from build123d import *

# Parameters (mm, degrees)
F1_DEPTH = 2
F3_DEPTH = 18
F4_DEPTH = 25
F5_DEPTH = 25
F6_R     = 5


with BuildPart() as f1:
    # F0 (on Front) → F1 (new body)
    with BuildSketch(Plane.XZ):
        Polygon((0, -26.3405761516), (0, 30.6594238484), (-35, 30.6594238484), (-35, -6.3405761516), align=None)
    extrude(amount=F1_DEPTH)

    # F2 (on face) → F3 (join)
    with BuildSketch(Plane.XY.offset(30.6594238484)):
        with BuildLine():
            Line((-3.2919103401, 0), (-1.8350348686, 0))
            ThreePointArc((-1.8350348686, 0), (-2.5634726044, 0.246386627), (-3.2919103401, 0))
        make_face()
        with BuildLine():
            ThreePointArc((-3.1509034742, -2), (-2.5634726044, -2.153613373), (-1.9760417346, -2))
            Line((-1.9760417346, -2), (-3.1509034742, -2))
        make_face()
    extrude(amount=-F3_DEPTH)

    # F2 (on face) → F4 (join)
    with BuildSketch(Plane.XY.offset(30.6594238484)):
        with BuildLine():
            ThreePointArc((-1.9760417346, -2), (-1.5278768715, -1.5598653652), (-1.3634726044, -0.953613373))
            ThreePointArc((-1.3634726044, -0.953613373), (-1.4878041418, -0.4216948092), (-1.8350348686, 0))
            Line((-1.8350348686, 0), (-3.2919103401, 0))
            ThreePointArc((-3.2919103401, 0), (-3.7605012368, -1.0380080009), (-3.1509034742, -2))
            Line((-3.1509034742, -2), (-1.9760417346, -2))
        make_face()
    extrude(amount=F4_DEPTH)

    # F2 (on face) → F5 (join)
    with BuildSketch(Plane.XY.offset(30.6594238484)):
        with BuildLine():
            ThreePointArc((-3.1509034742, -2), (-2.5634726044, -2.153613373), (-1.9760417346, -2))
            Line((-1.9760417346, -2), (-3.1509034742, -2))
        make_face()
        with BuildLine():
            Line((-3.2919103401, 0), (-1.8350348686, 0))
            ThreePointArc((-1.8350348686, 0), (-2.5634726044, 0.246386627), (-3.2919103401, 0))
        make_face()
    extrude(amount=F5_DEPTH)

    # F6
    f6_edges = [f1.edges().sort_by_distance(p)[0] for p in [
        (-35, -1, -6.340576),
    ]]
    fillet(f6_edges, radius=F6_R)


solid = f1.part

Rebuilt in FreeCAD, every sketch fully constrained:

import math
import FreeCAD as App
import Part
import Sketcher


def edges_at(feature, points):
    """Names of the edges that pass closest to the given points."""
    edges = feature.Shape.Edges
    near = lambda p: min(range(len(edges)), key=lambda i: edges[i].distToShape(Part.Vertex(*p))[0])
    return sorted({f"Edge{near(p) + 1}" for p in points})

doc = App.newDocument("Part")
body = doc.addObject("PartDesign::Body", "Body")

# Sketch on XZ plane
sketch1 = body.newObject("Sketcher::SketchObject", "Sketch")
sketch1.AttachmentSupport = (doc.getObject("XZ_Plane"), [""])
sketch1.MapMode = "FlatFace"
sketch1.addGeometry(Part.LineSegment(App.Vector(0, -26, 0), App.Vector(0, 31, 0)), False)
sketch1.addGeometry(Part.LineSegment(App.Vector(0, 31, 0), App.Vector(-35, 31, 0)), False)
sketch1.addGeometry(Part.LineSegment(App.Vector(-35, 31, 0), App.Vector(-35, -6, 0)), False)
sketch1.addGeometry(Part.LineSegment(App.Vector(-35, -6, 0), App.Vector(0, -26, 0)), False)
sketch1.addConstraint(Sketcher.Constraint("Coincident", 0, 2, 1, 1))
sketch1.addConstraint(Sketcher.Constraint("Coincident", 1, 2, 2, 1))
sketch1.addConstraint(Sketcher.Constraint("Coincident", 2, 2, 3, 1))
sketch1.addConstraint(Sketcher.Constraint("Coincident", 3, 2, 0, 1))
sketch1.addConstraint(Sketcher.Constraint("Vertical", 0))
sketch1.addConstraint(Sketcher.Constraint("Horizontal", 1))
sketch1.addConstraint(Sketcher.Constraint("Vertical", 2))
sketch1.addConstraint(Sketcher.Constraint("PointOnObject", 0, 2, -2))
sketch1.addConstraint(Sketcher.Constraint("DistanceX", 1, 2, 1, 1, 35.0))
sketch1.addConstraint(Sketcher.Constraint("DistanceY", 0, 1, 0, 2, 57.0))
sketch1.addConstraint(Sketcher.Constraint("DistanceY", 2, 2, 2, 1, 37.0))
sketch1.addConstraint(Sketcher.Constraint("DistanceY", -1, 1, 0, 2, 30.659424))
pad1 = body.newObject("PartDesign::Pad", "Pad")
pad1.Profile = sketch1
pad1.Length = 2

# Sketch on XY plane
sketch2 = body.newObject("Sketcher::SketchObject", "Sketch001")
sketch2.AttachmentSupport = (doc.getObject("XY_Plane"), [""])
sketch2.MapMode = "FlatFace"
sketch2.AttachmentOffset = App.Placement(App.Vector(0, 0, 30.659424), App.Rotation())
sketch2.addGeometry(Part.LineSegment(App.Vector(-3.3, 0, 0), App.Vector(-1.8, 0, 0)), False)
sketch2.addGeometry(Part.ArcOfCircle(Part.Circle(App.Vector(-2.6, -1, 0), App.Vector(0, 0, 1), 1.2), math.radians(53), math.radians(127)), False)
sketch2.addGeometry(Part.ArcOfCircle(Part.Circle(App.Vector(-2.6, -1, 0), App.Vector(0, 0, 1), 1.2), math.radians(-119), math.radians(-61)), False)
sketch2.addGeometry(Part.LineSegment(App.Vector(-2, -2, 0), App.Vector(-3.2, -2, 0)), False)
sketch2.addConstraint(Sketcher.Constraint("Coincident", 0, 1, 1, 2))
sketch2.addConstraint(Sketcher.Constraint("Coincident", 1, 1, 0, 2))
sketch2.addConstraint(Sketcher.Constraint("Coincident", 2, 1, 3, 2))
sketch2.addConstraint(Sketcher.Constraint("Coincident", 3, 1, 2, 2))
sketch2.addConstraint(Sketcher.Constraint("Horizontal", 0))
sketch2.addConstraint(Sketcher.Constraint("Horizontal", 3))
sketch2.addConstraint(Sketcher.Constraint("Coincident", 2, 3, 1, 3))
sketch2.addConstraint(Sketcher.Constraint("Equal", 1, 2))
sketch2.addConstraint(Sketcher.Constraint("PointOnObject", 0, 1, -1))
sketch2.addConstraint(Sketcher.Constraint("Radius", 1, 1.2))
sketch2.addConstraint(Sketcher.Constraint("DistanceY", 2, 1, -1, 1, 2.0))
sketch2.addConstraint(Sketcher.Constraint("DistanceX", 3, 2, 3, 1, 1.174862))
sketch2.addConstraint(Sketcher.Constraint("DistanceX", 0, 1, -1, 1, 3.29191))
pad2 = body.newObject("PartDesign::Pad", "Pad001")
pad2.Profile = sketch2
pad2.Length = 18
pad2.Reversed = True

# Sketch on XY plane
sketch3 = body.newObject("Sketcher::SketchObject", "Sketch002")
sketch3.AttachmentSupport = (doc.getObject("XY_Plane"), [""])
sketch3.MapMode = "FlatFace"
sketch3.AttachmentOffset = App.Placement(App.Vector(0, 0, 30.659424), App.Rotation())
sketch3.addGeometry(Part.ArcOfCircle(Part.Circle(App.Vector(-2.6, -1, 0), App.Vector(0, 0, 1), 1.2), math.radians(-61), math.radians(0)), False)
sketch3.addGeometry(Part.ArcOfCircle(Part.Circle(App.Vector(-2.6, -1, 0), App.Vector(0, 0, 1), 1.2), math.radians(0), math.radians(53)), False)
sketch3.addGeometry(Part.LineSegment(App.Vector(-1.8, 0, 0), App.Vector(-3.3, 0, 0)), False)
sketch3.addGeometry(Part.ArcOfCircle(Part.Circle(App.Vector(-2.6, -1, 0), App.Vector(0, 0, 1), 1.2), math.radians(127), math.radians(241)), False)
sketch3.addGeometry(Part.LineSegment(App.Vector(-3.2, -2, 0), App.Vector(-2, -2, 0)), False)
sketch3.addConstraint(Sketcher.Constraint("Tangent", 0, 2, 1, 1))
sketch3.addConstraint(Sketcher.Constraint("Coincident", 1, 2, 2, 1))
sketch3.addConstraint(Sketcher.Constraint("Coincident", 2, 2, 3, 1))
sketch3.addConstraint(Sketcher.Constraint("Coincident", 3, 2, 4, 1))
sketch3.addConstraint(Sketcher.Constraint("Coincident", 4, 2, 0, 1))
sketch3.addConstraint(Sketcher.Constraint("Horizontal", 2))
sketch3.addConstraint(Sketcher.Constraint("Horizontal", 4))
sketch3.addConstraint(Sketcher.Constraint("Coincident", 3, 3, 0, 3))
sketch3.addConstraint(Sketcher.Constraint("Equal", 0, 1))
sketch3.addConstraint(Sketcher.Constraint("Equal", 1, 3))
sketch3.addConstraint(Sketcher.Constraint("PointOnObject", 1, 2, -1))
sketch3.addConstraint(Sketcher.Constraint("Horizontal", 3, 3, 0, 2))
sketch3.addConstraint(Sketcher.Constraint("Radius", 0, 1.2))
sketch3.addConstraint(Sketcher.Constraint("DistanceY", 3, 2, -1, 1, 2.0))
sketch3.addConstraint(Sketcher.Constraint("DistanceX", 4, 1, 4, 2, 1.174862))
sketch3.addConstraint(Sketcher.Constraint("DistanceX", 2, 2, -1, 1, 3.29191))
pad3 = body.newObject("PartDesign::Pad", "Pad002")
pad3.Profile = sketch3
pad3.Length = 25

# Sketch on XY plane
sketch4 = body.newObject("Sketcher::SketchObject", "Sketch003")
sketch4.AttachmentSupport = (doc.getObject("XY_Plane"), [""])
sketch4.MapMode = "FlatFace"
sketch4.AttachmentOffset = App.Placement(App.Vector(0, 0, 30.659424), App.Rotation())
sketch4.addGeometry(Part.ArcOfCircle(Part.Circle(App.Vector(-2.6, -1, 0), App.Vector(0, 0, 1), 1.2), math.radians(-119), math.radians(-61)), False)
sketch4.addGeometry(Part.LineSegment(App.Vector(-2, -2, 0), App.Vector(-3.2, -2, 0)), False)
sketch4.addGeometry(Part.LineSegment(App.Vector(-3.3, 0, 0), App.Vector(-1.8, 0, 0)), False)
sketch4.addGeometry(Part.ArcOfCircle(Part.Circle(App.Vector(-2.6, -1, 0), App.Vector(0, 0, 1), 1.2), math.radians(53), math.radians(127)), False)
sketch4.addConstraint(Sketcher.Constraint("Coincident", 0, 1, 1, 2))
sketch4.addConstraint(Sketcher.Constraint("Coincident", 1, 1, 0, 2))
sketch4.addConstraint(Sketcher.Constraint("Coincident", 2, 1, 3, 2))
sketch4.addConstraint(Sketcher.Constraint("Coincident", 3, 1, 2, 2))
sketch4.addConstraint(Sketcher.Constraint("Horizontal", 1))
sketch4.addConstraint(Sketcher.Constraint("Horizontal", 2))
sketch4.addConstraint(Sketcher.Constraint("Coincident", 3, 3, 0, 3))
sketch4.addConstraint(Sketcher.Constraint("Equal", 0, 3))
sketch4.addConstraint(Sketcher.Constraint("PointOnObject", 2, 1, -1))
sketch4.addConstraint(Sketcher.Constraint("Radius", 0, 1.2))
sketch4.addConstraint(Sketcher.Constraint("DistanceY", 0, 1, -1, 1, 2.0))
sketch4.addConstraint(Sketcher.Constraint("DistanceX", 1, 2, 1, 1, 1.174862))
sketch4.addConstraint(Sketcher.Constraint("DistanceX", 1, 1, -1, 1, 1.976042))
pad4 = body.newObject("PartDesign::Pad", "Pad003")
pad4.Profile = sketch4
pad4.Length = 25
doc.recompute()

fillet = body.newObject("PartDesign::Fillet", "Fillet")
fillet.Base = (pad4, edges_at(pad4, [(-35, -1, -6.341)]))
fillet.Radius = 5

doc.recompute()
